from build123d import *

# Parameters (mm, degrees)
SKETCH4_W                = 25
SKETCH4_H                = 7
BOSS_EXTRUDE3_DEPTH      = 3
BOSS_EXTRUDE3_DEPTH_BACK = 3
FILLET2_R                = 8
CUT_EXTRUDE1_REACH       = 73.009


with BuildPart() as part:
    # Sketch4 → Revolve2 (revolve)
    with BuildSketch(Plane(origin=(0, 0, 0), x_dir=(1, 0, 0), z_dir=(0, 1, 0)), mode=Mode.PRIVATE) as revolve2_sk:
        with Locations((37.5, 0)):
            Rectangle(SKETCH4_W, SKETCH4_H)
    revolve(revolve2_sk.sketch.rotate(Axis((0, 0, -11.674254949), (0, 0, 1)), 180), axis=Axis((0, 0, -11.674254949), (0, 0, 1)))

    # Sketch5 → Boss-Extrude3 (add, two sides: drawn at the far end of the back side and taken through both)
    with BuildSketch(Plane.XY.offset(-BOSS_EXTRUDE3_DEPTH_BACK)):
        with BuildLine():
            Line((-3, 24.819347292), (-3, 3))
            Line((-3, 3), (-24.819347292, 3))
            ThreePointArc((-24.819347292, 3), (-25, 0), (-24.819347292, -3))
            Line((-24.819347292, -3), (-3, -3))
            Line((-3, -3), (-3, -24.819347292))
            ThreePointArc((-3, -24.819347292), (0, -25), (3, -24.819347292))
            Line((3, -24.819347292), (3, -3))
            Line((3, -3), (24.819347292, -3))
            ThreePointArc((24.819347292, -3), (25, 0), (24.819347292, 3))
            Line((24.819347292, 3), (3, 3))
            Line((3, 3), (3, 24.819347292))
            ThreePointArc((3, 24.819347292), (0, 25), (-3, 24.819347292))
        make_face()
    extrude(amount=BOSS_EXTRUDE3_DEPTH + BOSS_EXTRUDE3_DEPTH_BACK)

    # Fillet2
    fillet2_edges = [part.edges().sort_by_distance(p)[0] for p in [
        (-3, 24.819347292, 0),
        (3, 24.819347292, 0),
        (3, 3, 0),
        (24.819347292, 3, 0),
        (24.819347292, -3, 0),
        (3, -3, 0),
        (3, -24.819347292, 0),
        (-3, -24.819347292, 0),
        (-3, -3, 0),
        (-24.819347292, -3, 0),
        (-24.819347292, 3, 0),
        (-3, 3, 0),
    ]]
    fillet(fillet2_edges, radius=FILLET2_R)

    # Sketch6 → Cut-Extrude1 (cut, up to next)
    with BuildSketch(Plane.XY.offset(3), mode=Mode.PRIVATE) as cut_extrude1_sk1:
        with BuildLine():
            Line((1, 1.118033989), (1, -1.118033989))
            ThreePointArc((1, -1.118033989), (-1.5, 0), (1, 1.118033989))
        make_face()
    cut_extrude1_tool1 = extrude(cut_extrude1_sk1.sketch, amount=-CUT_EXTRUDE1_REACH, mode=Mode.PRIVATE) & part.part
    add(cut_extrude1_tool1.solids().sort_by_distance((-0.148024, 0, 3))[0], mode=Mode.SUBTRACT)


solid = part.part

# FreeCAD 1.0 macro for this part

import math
import FreeCAD as App
import Part
import Sketcher

V = App.Vector


def edges_at(feature, points):
    """Names of the edges that pass closest to the given points."""
    edges = feature.Shape.Edges
    near = lambda p: min(range(len(edges)), key=lambda i: edges[i].distToShape(Part.Vertex(*p))[0])
    return sorted({f"Edge{near(p) + 1}" for p in points})


def add_polygon(sketch, points):
    """Adds a closed chain of lines whose ends are joined by coincident constraints."""
    first, n = sketch.GeometryCount, len(points)
    for a, b in zip(points, points[1:] + points[:1]):
        sketch.addGeometry(Part.LineSegment(App.Vector(*a, 0), App.Vector(*b, 0)), False)
    for i in range(n):
        sketch.addConstraint(Sketcher.Constraint("Coincident", first + i, 2, first + (i + 1) % n, 1))

doc = App.newDocument("Part")
params = doc.addObject("Spreadsheet::Sheet", "Params")
for row, (alias, value) in enumerate([
    ("sketch1_width", "25 mm"),
    ("sketch1_height", "7 mm"),
    ("revolution_angle", "360 deg"),
    ("sketch2_radius", "25 mm"),
    ("pad1_length", "3 mm"),
    ("pad1_length2", "3 mm"),
    ("fillet_radius", "8 mm"),
    ("sketch3_radius", "1.5 mm"),
], start=1):
    params.set(f"A{row}", alias)
    params.set(f"B{row}", "=" + value)
    params.setAlias(f"B{row}", alias)

body = doc.addObject("PartDesign::Body", "Body")

# Sketch on XZ plane
sketch1 = body.newObject("Sketcher::SketchObject", "Sketch")
sketch1.AttachmentSupport = (doc.getObject("XZ_Plane"), [""])
sketch1.MapMode = "FlatFace"
add_polygon(sketch1, [(25, -4), (25, 4), (50, 4), (50, -4)])  # lines 0-3
sketch1.addConstraint(Sketcher.Constraint("Vertical", 0))
sketch1.addConstraint(Sketcher.Constraint("Horizontal", 1))
sketch1.addConstraint(Sketcher.Constraint("Vertical", 2))
sketch1.addConstraint(Sketcher.Constraint("Horizontal", 3))
sketch1.addConstraint(Sketcher.Constraint("DistanceX", 1, 1, 1, 2, 25.0))
sketch1.addConstraint(Sketcher.Constraint("DistanceY", 0, 1, 0, 2, 7.0))
sketch1.addConstraint(Sketcher.Constraint("DistanceX", -1, 1, 0, 2, 25.0))
sketch1.addConstraint(Sketcher.Constraint("DistanceY", -1, 1, 0, 2, 3.5))
sketch1.setExpression("Constraints[8]", "Params.sketch1_width")
sketch1.setExpression("Constraints[9]", "Params.sketch1_height")
revolution = body.newObject("PartDesign::Revolution", "Revolution")
revolution.Profile = sketch1
revolution.ReferenceAxis = (sketch1, ["V_Axis"])
revolution.setExpression("Angle", "Params.revolution_angle")

# Sketch on XY plane
sketch2 = body.newObject("Sketcher::SketchObject", "Sketch001")
sketch2.AttachmentSupport = (doc.getObject("XY_Plane"), [""])
sketch2.MapMode = "FlatFace"
sketch2.addGeometry(Part.LineSegment(V(-3, 25, 0), V(-3, 3, 0)), False)
sketch2.addGeometry(Part.LineSegment(V(-3, 3, 0), V(-25, 3, 0)), False)
sketch2.addGeometry(Part.ArcOfCircle(Part.Circle(V(0, 0, 0), V(0, 0, 1), 25), math.radians(173.11), math.radians(186.89)), False)
sketch2.addGeometry(Part.LineSegment(V(-25, -3, 0), V(-3, -3, 0)), False)
sketch2.addGeometry(Part.LineSegment(V(-3, -3, 0), V(-3, -25, 0)), False)
sketch2.addGeometry(Part.ArcOfCircle(Part.Circle(V(0, 0, 0), V(0, 0, 1), 25), math.radians(-96.89), math.radians(-83.11)), False)
sketch2.addGeometry(Part.LineSegment(V(3, -25, 0), V(3, -3, 0)), False)
sketch2.addGeometry(Part.LineSegment(V(3, -3, 0), V(25, -3, 0)), False)
sketch2.addGeometry(Part.ArcOfCircle(Part.Circle(V(0, 0, 0), V(0, 0, 1), 25), math.radians(-6.89), math.radians(6.89)), False)
sketch2.addGeometry(Part.LineSegment(V(25, 3, 0), V(3, 3, 0)), False)
sketch2.addGeometry(Part.LineSegment(V(3, 3, 0), V(3, 25, 0)), False)
sketch2.addGeometry(Part.ArcOfCircle(Part.Circle(V(0, 0, 0), V(0, 0, 1), 25), math.radians(83.11), math.radians(96.89)), False)
sketch2.addConstraint(Sketcher.Constraint("Coincident", 0, 2, 1, 1))
sketch2.addConstraint(Sketcher.Constraint("Coincident", 1, 2, 2, 1))
sketch2.addConstraint(Sketcher.Constraint("Coincident", 2, 2, 3, 1))
sketch2.addConstraint(Sketcher.Constraint("Coincident", 3, 2, 4, 1))
sketch2.addConstraint(Sketcher.Constraint("Coincident", 4, 2, 5, 1))
sketch2.addConstraint(Sketcher.Constraint("Coincident", 5, 2, 6, 1))
sketch2.addConstraint(Sketcher.Constraint("Coincident", 6, 2, 7, 1))
sketch2.addConstraint(Sketcher.Constraint("Coincident", 7, 2, 8, 1))
sketch2.addConstraint(Sketcher.Constraint("Coincident", 8, 2, 9, 1))
sketch2.addConstraint(Sketcher.Constraint("Coincident", 9, 2, 10, 1))
sketch2.addConstraint(Sketcher.Constraint("Coincident", 10, 2, 11, 1))
sketch2.addConstraint(Sketcher.Constraint("Coincident", 11, 2, 0, 1))
sketch2.addConstraint(Sketcher.Constraint("Vertical", 0))
sketch2.addConstraint(Sketcher.Constraint("Horizontal", 1))
sketch2.addConstraint(Sketcher.Constraint("Horizontal", 3))
sketch2.addConstraint(Sketcher.Constraint("Vertical", 4))
sketch2.addConstraint(Sketcher.Constraint("Vertical", 6))
sketch2.addConstraint(Sketcher.Constraint("Horizontal", 7))
sketch2.addConstraint(Sketcher.Constraint("Horizontal", 9))
sketch2.addConstraint(Sketcher.Constraint("Vertical", 10))
sketch2.addConstraint(Sketcher.Constraint("Coincident", 2, 3, -1, 1))
sketch2.addConstraint(Sketcher.Constraint("Coincident", 5, 3, -1, 1))
sketch2.addConstraint(Sketcher.Constraint("Coincident", 8, 3, -1, 1))
sketch2.addConstraint(Sketcher.Constraint("Coincident", 11, 3, -1, 1))
sketch2.addConstraint(Sketcher.Constraint("Equal", 2, 5))
sketch2.addConstraint(Sketcher.Constraint("Equal", 5, 8))
sketch2.addConstraint(Sketcher.Constraint("Equal", 8, 11))
sketch2.addConstraint(Sketcher.Constraint("Symmetric", 0, 2, 6, 2, -1, 1))
sketch2.addConstraint(Sketcher.Constraint("Symmetric", 3, 2, 9, 2, -1, 1))
sketch2.addConstraint(Sketcher.Constraint("Symmetric", 3, 2, 6, 2, -2))
sketch2.addConstraint(Sketcher.Constraint("Equal", 9, 0))
sketch2.addConstraint(Sketcher.Constraint("Radius", 2, 25.0))
sketch2.addConstraint(Sketcher.Constraint("DistanceX", 0, 2, -1, 1, 3.0))
sketch2.setExpression("Constraints[31]", "Params.sketch2_radius")
pad1 = body.newObject("PartDesign::Pad", "Pad")
pad1.Profile = sketch2
pad1.Type = "TwoLengths"
pad1.setExpression("Length", "Params.pad1_length")
pad1.setExpression("Length2", "Params.pad1_length2")
doc.recompute()

fillet = body.newObject("PartDesign::Fillet", "Fillet")
fillet.Base = (pad1, edges_at(pad1, [
    (-3, 24.819, 0),
    (3, 24.819, 0),
    (3, 3, 0),
    (24.819, 3, 0),
    (24.819, -3, 0),
    (3, -3, 0),
    (3, -24.819, 0),
    (-3, -24.819, 0),
    (-3, -3, 0),
    (-24.819, -3, 0),
    (-24.819, 3, 0),
    (-3, 3, 0),
]))
fillet.setExpression("Radius", "Params.fillet_radius")

# Sketch on XY plane
sketch3 = body.newObject("Sketcher::SketchObject", "Sketch002")
sketch3.AttachmentSupport = (doc.getObject("XY_Plane"), [""])
sketch3.MapMode = "FlatFace"
sketch3.AttachmentOffset = App.Placement(V(0, 0, 3), App.Rotation())
sketch3.addGeometry(Part.LineSegment(V(1, -1.1, 0), V(1, 1.1, 0)), False)
sketch3.addGeometry(Part.ArcOfCircle(Part.Circle(V(0, 0, 0), V(0, 0, 1), 1.5), math.radians(48), math.radians(312)), False)
sketch3.addConstraint(Sketcher.Constraint("Coincident", 0, 1, 1, 2))
sketch3.addConstraint(Sketcher.Constraint("Coincident", 1, 1, 0, 2))
sketch3.addConstraint(Sketcher.Constraint("Vertical", 0))
sketch3.addConstraint(Sketcher.Constraint("Coincident", 1, 3, -1, 1))
sketch3.addConstraint(Sketcher.Constraint("Radius", 1, 1.5))
sketch3.addConstraint(Sketcher.Constraint("DistanceX", -1, 1, 0, 1, 1.0))
sketch3.setExpression("Constraints[4]", "Params.sketch3_radius")
pocket1 = body.newObject("PartDesign::Pocket", "Pocket")
pocket1.Profile = sketch3
pocket1.Type = "UpToFirst"

doc.recompute()
